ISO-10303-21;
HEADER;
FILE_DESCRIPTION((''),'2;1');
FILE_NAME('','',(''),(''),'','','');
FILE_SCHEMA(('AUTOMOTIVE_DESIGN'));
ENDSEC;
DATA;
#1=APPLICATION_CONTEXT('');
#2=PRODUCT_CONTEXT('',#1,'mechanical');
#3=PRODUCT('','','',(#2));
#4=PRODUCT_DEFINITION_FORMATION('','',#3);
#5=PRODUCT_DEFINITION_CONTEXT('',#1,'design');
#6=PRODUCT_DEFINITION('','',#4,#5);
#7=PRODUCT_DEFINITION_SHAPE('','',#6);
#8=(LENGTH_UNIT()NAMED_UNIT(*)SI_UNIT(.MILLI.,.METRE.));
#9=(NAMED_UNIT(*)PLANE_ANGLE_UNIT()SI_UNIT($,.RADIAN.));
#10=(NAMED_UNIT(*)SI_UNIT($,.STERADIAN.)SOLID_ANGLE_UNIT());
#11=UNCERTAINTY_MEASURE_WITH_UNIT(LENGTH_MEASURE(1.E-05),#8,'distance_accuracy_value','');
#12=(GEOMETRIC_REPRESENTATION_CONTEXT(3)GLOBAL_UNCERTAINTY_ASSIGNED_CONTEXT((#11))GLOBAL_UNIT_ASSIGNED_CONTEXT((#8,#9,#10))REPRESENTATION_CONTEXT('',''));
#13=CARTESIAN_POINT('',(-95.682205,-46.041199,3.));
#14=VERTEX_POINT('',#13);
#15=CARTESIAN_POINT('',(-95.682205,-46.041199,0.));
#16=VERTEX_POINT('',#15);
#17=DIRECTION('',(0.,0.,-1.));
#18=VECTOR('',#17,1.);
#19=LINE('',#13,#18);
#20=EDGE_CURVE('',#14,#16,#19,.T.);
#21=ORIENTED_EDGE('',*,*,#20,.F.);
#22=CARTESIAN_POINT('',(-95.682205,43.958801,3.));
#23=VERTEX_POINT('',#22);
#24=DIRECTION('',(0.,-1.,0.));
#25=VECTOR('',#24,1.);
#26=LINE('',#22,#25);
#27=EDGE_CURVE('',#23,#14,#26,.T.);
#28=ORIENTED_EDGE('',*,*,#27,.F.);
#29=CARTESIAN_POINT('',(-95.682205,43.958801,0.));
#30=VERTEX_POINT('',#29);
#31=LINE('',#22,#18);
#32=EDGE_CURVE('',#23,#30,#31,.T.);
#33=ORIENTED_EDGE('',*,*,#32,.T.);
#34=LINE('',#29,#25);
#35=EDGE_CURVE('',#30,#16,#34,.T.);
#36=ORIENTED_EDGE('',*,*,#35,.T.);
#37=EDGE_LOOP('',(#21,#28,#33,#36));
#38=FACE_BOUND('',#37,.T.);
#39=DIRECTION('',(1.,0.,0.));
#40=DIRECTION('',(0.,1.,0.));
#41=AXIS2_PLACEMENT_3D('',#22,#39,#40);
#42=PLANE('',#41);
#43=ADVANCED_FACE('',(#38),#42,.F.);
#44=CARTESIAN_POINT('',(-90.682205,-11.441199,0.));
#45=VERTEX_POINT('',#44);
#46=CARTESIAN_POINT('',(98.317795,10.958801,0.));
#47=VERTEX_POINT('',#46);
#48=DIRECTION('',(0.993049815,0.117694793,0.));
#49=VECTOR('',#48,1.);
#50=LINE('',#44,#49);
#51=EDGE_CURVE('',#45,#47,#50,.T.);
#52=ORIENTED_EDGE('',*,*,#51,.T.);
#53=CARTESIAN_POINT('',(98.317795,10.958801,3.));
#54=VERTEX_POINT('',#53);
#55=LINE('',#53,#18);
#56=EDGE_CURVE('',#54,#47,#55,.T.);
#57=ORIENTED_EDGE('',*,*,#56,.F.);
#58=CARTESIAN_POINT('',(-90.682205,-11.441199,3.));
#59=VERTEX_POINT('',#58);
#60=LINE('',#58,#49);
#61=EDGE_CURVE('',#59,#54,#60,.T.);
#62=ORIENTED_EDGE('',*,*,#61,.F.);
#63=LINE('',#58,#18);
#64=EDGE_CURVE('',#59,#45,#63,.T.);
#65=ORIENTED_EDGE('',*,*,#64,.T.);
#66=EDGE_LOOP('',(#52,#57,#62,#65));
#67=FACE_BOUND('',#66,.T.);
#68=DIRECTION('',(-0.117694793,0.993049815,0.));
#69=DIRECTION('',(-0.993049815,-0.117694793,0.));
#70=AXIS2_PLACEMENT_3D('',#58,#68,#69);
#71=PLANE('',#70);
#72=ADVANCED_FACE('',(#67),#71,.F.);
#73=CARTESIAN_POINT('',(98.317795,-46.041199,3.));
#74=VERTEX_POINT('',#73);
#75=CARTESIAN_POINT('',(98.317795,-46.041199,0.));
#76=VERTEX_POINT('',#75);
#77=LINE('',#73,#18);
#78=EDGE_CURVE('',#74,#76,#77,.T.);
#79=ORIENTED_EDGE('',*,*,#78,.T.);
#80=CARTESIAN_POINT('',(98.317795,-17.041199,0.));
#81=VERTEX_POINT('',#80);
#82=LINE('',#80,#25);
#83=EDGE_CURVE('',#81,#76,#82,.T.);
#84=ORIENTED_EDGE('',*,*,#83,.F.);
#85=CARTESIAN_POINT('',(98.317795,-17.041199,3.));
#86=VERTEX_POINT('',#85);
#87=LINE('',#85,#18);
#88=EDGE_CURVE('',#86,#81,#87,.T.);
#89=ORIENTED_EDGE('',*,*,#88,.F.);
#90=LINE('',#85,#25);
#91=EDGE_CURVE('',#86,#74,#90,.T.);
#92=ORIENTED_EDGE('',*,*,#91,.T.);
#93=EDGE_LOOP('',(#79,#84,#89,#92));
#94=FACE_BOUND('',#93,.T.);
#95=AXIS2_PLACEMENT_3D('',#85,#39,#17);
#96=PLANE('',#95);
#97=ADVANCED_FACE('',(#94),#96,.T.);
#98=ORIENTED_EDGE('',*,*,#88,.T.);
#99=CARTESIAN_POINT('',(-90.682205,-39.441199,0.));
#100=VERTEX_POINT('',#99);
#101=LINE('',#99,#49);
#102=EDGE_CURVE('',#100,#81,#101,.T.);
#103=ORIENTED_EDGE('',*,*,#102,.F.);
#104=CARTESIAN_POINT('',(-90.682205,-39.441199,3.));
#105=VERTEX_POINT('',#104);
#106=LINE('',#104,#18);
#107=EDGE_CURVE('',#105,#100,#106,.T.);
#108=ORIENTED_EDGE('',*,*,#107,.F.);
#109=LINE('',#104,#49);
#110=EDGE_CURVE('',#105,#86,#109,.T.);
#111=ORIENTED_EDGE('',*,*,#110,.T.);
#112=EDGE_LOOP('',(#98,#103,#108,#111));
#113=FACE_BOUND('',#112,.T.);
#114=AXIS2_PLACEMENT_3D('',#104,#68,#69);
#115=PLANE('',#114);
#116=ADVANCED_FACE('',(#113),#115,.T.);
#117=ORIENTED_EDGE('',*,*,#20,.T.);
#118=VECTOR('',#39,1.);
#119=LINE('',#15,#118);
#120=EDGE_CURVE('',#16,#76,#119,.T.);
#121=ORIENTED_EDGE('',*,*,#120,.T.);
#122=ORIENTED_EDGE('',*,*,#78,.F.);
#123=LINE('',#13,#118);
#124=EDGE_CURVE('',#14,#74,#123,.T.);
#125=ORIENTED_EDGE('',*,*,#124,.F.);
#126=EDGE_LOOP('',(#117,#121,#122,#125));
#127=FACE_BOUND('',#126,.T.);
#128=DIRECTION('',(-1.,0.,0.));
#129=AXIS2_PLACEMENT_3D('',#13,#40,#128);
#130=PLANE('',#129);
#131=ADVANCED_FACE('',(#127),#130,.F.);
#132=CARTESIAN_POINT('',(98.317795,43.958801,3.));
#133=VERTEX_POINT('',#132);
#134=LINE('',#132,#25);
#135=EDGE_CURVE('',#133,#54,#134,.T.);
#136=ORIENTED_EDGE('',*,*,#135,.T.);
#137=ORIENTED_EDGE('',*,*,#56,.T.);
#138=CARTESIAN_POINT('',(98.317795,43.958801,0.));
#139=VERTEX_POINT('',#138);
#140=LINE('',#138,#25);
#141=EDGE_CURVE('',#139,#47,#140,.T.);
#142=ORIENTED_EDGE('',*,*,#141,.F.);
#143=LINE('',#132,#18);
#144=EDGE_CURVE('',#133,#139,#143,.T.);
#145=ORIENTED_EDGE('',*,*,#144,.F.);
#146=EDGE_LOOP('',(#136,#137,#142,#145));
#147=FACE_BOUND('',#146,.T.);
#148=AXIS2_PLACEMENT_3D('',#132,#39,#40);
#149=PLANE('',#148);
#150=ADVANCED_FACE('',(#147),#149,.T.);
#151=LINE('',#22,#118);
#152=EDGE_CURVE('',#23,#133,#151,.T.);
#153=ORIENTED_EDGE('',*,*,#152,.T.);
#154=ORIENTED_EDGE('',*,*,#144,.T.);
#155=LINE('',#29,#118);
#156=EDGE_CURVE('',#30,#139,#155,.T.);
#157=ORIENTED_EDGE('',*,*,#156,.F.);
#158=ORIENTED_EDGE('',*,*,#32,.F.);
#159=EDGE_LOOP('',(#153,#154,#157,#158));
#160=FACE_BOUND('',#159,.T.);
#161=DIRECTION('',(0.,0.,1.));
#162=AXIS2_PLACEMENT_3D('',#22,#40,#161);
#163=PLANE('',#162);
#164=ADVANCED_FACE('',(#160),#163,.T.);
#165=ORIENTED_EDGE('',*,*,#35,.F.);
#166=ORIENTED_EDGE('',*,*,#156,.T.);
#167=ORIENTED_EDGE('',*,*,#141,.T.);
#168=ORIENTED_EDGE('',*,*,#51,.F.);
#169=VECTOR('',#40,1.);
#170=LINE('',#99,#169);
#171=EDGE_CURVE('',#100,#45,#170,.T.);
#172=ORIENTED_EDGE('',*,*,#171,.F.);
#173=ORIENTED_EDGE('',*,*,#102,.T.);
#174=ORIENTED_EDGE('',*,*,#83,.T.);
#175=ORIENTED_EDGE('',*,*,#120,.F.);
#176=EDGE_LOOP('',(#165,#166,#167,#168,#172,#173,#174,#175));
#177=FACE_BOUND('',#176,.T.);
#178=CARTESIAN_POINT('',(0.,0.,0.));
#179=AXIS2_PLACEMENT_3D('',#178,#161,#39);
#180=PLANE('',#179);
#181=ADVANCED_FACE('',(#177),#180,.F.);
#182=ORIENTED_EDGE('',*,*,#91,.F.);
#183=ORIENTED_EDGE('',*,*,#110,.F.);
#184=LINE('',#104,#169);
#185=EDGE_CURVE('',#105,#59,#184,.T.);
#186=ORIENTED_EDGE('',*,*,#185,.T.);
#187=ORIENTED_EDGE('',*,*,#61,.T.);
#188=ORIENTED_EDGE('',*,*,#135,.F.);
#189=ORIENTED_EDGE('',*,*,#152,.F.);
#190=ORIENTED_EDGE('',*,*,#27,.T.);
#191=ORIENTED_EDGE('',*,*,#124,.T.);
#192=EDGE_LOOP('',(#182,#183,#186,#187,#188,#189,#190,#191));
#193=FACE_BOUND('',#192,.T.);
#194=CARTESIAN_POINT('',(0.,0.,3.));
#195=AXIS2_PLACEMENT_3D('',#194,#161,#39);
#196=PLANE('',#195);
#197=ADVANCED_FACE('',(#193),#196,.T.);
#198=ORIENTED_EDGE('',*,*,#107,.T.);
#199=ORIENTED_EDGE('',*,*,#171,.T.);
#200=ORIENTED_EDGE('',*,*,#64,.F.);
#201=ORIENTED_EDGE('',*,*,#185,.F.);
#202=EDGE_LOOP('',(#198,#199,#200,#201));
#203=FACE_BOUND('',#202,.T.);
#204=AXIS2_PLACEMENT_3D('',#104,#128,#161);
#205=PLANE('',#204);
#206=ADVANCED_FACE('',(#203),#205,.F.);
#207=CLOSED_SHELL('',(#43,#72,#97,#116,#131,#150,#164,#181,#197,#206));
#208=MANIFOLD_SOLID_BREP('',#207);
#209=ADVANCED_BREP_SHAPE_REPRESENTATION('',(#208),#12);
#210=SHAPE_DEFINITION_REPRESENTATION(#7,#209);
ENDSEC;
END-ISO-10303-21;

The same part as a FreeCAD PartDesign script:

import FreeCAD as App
import Part
import Sketcher
from FreeCAD import Vector
Q = App.Units.Quantity


def add_polygon(sketch, points):
    """Adds a closed chain of lines whose ends are joined by coincident constraints."""
    first, n = sketch.GeometryCount, len(points)
    for a, b in zip(points, points[1:] + points[:1]):
        sketch.addGeometry(Part.LineSegment(App.Vector(*a, 0), App.Vector(*b, 0)), False)
    for i in range(n):
        sketch.addConstraint(Sketcher.Constraint("Coincident", first + i, 2, first + (i + 1) % n, 1))

doc = App.newDocument("Part")
params = doc.addObject("Spreadsheet::Sheet", "Params")
for row, (alias, value) in enumerate([
    ("sketch1_width", "194 mm"),
    ("sketch1_height", "28 mm"),
    ("sketch1_height2", "33 mm"),
    ("sketch1_height3", "90 mm"),
    ("pad1_length", "3 mm"),
], start=1):
    params.set(f"A{row}", alias)
    params.set(f"B{row}", "=" + value)
    params.setAlias(f"B{row}", alias)

body = doc.addObject("PartDesign::Body", "Body")

# Sketch on XY plane
sketch1 = body.newObject("Sketcher::SketchObject", "Sketch")
sketch1.AttachmentSupport = (doc.getObject("XY_Plane"), [""])
sketch1.MapMode = "FlatFace"
add_polygon(sketch1, [(-91, -39), (-91, -11), (98, 11), (98, 44), (-96, 44), (-96, -46), (98, -46), (98, -17)])  # lines 0-7
sketch1.addConstraint(Sketcher.Constraint("Vertical", 0))
sketch1.addConstraint(Sketcher.Constraint("Vertical", 2))
sketch1.addConstraint(Sketcher.Constraint("Horizontal", 3))
sketch1.addConstraint(Sketcher.Constraint("Vertical", 4))
sketch1.addConstraint(Sketcher.Constraint("Horizontal", 5))
sketch1.addConstraint(Sketcher.Constraint("Vertical", 6))
sketch1.addConstraint(Sketcher.Constraint("Parallel", 1, 7))
sketch1.addConstraint(Sketcher.Constraint("Vertical", 2, 2, 5, 2))
sketch1.addConstraint(Sketcher.Constraint("DistanceX", 3, 2, 3, 1, Q("194 mm")))
sketch1.addConstraint(Sketcher.Constraint("DistanceY", 0, 1, 0, 2, Q("28 mm")))
sketch1.addConstraint(Sketcher.Constraint("DistanceY", 2, 1, 2, 2, Q("33 mm")))
sketch1.addConstraint(Sketcher.Constraint("DistanceY", 4, 2, 4, 1, Q("90 mm")))
sketch1.addConstraint(Sketcher.Constraint("DistanceX", 0, 2, 1, 2, Q("189 mm")))
sketch1.addConstraint(Sketcher.Constraint("DistanceY", 0, 2, 1, 2, Q("22.4 mm")))
sketch1.addConstraint(Sketcher.Constraint("DistanceY", 0, 2, -1, 1, Q("11.441199 mm")))
sketch1.addConstraint(Sketcher.Constraint("DistanceX", 0, 2, -1, 1, Q("90.682205 mm")))
sketch1.setExpression("Constraints[16]", "Params.sketch1_width")
sketch1.setExpression("Constraints[17]", "Params.sketch1_height")
sketch1.setExpression("Constraints[18]", "Params.sketch1_height2")
sketch1.setExpression("Constraints[19]", "Params.sketch1_height3")
pad1 = body.newObject("PartDesign::Pad", "Pad")
pad1.Profile = sketch1
pad1.setExpression("Length", "Params.pad1_length")

doc.recompute()
